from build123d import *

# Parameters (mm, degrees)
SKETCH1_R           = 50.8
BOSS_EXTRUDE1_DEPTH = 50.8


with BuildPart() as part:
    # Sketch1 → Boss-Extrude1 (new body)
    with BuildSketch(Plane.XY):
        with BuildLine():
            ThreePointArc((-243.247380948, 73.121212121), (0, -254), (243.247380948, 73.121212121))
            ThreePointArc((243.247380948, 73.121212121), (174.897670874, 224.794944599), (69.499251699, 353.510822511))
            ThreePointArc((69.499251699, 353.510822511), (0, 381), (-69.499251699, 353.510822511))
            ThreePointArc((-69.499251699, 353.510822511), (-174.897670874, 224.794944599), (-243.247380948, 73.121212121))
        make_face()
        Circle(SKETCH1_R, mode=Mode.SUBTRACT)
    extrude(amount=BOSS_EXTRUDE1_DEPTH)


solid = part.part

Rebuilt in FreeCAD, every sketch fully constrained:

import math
import FreeCAD as App
import Part
import Sketcher
Q = App.Units.Quantity

doc = App.newDocument("Part")
body = doc.addObject("PartDesign::Body", "Body")

sketch1 = doc.addObject("Sketcher::SketchObject", "Sketch")
body.addObject(sketch1)
sketch1.AttachmentSupport = (doc.XY_Plane, [""])
sketch1.MapMode = "FlatFace"
sketch1.addGeometry([
    Part.ArcOfCircle(Part.Circle(App.Vector(0, 0, 0), App.Vector(0, 0, 1), 254), math.radians(163), math.radians(377)),
    Part.ArcOfCircle(Part.Circle(App.Vector(-365, -110, 0), App.Vector(0, 0, 1), 635), math.radians(17), math.radians(47)),
    Part.ArcOfCircle(Part.Circle(App.Vector(0, 279, 0), App.Vector(0, 0, 1), 102), math.radians(47), math.radians(133)),
    Part.ArcOfCircle(Part.Circle(App.Vector(365, -110, 0), App.Vector(0, 0, 1), 635), math.radians(133), math.radians(163)),
    Part.Circle(App.Vector(0, 0, 0), App.Vector(0, 0, 1), 51),
], False)
sketch1.addConstraint([
    Sketcher.Constraint("Tangent", 0, 2, 1, 1),
    Sketcher.Constraint("Tangent", 1, 2, 2, 1),
    Sketcher.Constraint("Tangent", 2, 2, 3, 1),
    Sketcher.Constraint("Tangent", 3, 2, 0, 1),
    Sketcher.Constraint("Coincident", 0, 3, -1, 1),
    Sketcher.Constraint("Coincident", 4, 3, -1, 1),
    Sketcher.Constraint("Equal", 1, 3),
    Sketcher.Constraint("PointOnObject", 2, 3, -2),
    Sketcher.Constraint("Diameter", 4, Q("4 in")),
    Sketcher.Constraint("Radius", 0, Q("10 in")),
    Sketcher.Constraint("Radius", 1, Q("25 in")),
    Sketcher.Constraint("Radius", 2, Q("4 in")),
    Sketcher.Constraint("DistanceY", -1, 1, 2, 3, Q("11 in")),
])
pad1 = doc.addObject("PartDesign::Pad", "Pad")
body.addObject(pad1)
pad1.Profile = sketch1
pad1.Length = Q("2 in")

doc.recompute()
